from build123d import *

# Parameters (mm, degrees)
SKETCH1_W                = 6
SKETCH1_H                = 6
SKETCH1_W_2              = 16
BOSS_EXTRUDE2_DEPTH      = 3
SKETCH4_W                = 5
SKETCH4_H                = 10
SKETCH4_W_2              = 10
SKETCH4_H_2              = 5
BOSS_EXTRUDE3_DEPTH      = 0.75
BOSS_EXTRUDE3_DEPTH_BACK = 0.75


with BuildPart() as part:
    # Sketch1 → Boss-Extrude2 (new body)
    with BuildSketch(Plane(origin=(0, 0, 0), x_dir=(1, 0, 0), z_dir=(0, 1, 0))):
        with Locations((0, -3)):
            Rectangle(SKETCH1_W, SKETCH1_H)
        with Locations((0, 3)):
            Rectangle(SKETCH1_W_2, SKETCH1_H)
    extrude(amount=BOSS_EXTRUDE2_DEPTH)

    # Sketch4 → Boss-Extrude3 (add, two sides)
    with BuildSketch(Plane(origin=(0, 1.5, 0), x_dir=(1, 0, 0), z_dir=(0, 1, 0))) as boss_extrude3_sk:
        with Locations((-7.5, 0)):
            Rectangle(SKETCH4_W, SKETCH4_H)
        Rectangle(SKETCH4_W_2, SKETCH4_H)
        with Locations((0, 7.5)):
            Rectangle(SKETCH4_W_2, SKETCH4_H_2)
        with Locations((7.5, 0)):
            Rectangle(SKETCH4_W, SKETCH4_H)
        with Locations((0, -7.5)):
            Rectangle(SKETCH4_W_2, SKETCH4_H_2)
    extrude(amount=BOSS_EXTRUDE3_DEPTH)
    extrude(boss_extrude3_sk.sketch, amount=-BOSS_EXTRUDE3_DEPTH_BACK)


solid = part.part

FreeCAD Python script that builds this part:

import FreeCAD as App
import Part
import Sketcher

V = App.Vector


def add_polygon(sketch, points):
    """Adds a closed chain of lines whose ends are joined by coincident constraints."""
    first, n = sketch.GeometryCount, len(points)
    for a, b in zip(points, points[1:] + points[:1]):
        sketch.addGeometry(Part.LineSegment(App.Vector(*a, 0), App.Vector(*b, 0)), False)
    for i in range(n):
        sketch.addConstraint(Sketcher.Constraint("Coincident", first + i, 2, first + (i + 1) % n, 1))

doc = App.newDocument("Part")
params = doc.addObject("Spreadsheet::Sheet", "Params")
for row, (alias, value) in enumerate([
    ("sketch1_width", "6 mm"),
    ("sketch1_width2", "5 mm"),
    ("pad1_length", "3 mm"),
    ("sketch2_width", "5 mm"),
    ("sketch2_width2", "10 mm"),
    ("pad2_length", "0.75 mm"),
    ("pad2_length2", "0.75 mm"),
], start=1):
    params.set(f"A{row}", alias)
    params.set(f"B{row}", "=" + value)
    params.setAlias(f"B{row}", alias)

body = doc.addObject("PartDesign::Body", "Body")

# Sketch on XZ plane
sketch1 = doc.addObject("Sketcher::SketchObject", "Sketch")
body.addObject(sketch1)
sketch1.AttachmentSupport = (doc.XZ_Plane, [""])
sketch1.MapMode = "FlatFace"
add_polygon(sketch1, [(-3, 0), (-3, 6), (3, 6), (3, 0), (8, 0), (8, -6), (-8, -6), (-8, 0)])  # lines 0-7
sketch1.addConstraint([
    Sketcher.Constraint("Vertical", 0),
    Sketcher.Constraint("Horizontal", 1),
    Sketcher.Constraint("Vertical", 2),
    Sketcher.Constraint("Horizontal", 3),
    Sketcher.Constraint("Vertical", 4),
    Sketcher.Constraint("Horizontal", 5),
    Sketcher.Constraint("Vertical", 6),
    Sketcher.Constraint("Horizontal", 7),
    Sketcher.Constraint("Symmetric", 3, 2, 6, 2, -1, 1),
    Sketcher.Constraint("Symmetric", 2, 2, 7, 2, -2),
    Sketcher.Constraint("Equal", 1, 0),
    Sketcher.Constraint("Equal", 2, 4),
    Sketcher.Constraint("DistanceX", 1, 1, 1, 2, 6.0),
    Sketcher.Constraint("DistanceX", 3, 1, 3, 2, 5.0),
])
sketch1.setExpression("Constraints[20]", "Params.sketch1_width")
sketch1.setExpression("Constraints[21]", "Params.sketch1_width2")
pad1 = doc.addObject("PartDesign::Pad", "Pad")
body.addObject(pad1)
pad1.Profile = sketch1
pad1.setExpression("Length", "Params.pad1_length")
pad1.Reversed = True

# Sketch on XZ plane
sketch2 = doc.addObject("Sketcher::SketchObject", "Sketch001")
body.addObject(sketch2)
sketch2.AttachmentSupport = (doc.XZ_Plane, [""])
sketch2.MapMode = "FlatFace"
sketch2.AttachmentOffset = App.Placement(V(0, 0, -1.5), App.Rotation())
add_polygon(sketch2, [(-10, -5), (-10, 5), (-5, 5), (-5, 10), (5, 10), (5, 5), (10, 5), (10, -5), (5, -5), (5, -10), (-5, -10), (-5, -5)])  # lines 0-11
sketch2.addConstraint([
    Sketcher.Constraint("Vertical", 0),
    Sketcher.Constraint("Horizontal", 1),
    Sketcher.Constraint("Vertical", 2),
    Sketcher.Constraint("Horizontal", 3),
    Sketcher.Constraint("Vertical", 4),
    Sketcher.Constraint("Horizontal", 5),
    Sketcher.Constraint("Vertical", 6),
    Sketcher.Constraint("Horizontal", 7),
    Sketcher.Constraint("Vertical", 8),
    Sketcher.Constraint("Horizontal", 9),
    Sketcher.Constraint("Vertical", 10),
    Sketcher.Constraint("Horizontal", 11),
    Sketcher.Constraint("Symmetric", 0, 2, 6, 2, -1, 1),
    Sketcher.Constraint("Symmetric", 2, 2, 8, 2, -1, 1),
    Sketcher.Constraint("Symmetric", 4, 2, 10, 2, -1, 1),
    Sketcher.Constraint("Symmetric", 1, 2, 4, 2, -2),
    Sketcher.Constraint("Equal", 9, 0),
    Sketcher.Constraint("Equal", 11, 2),
    Sketcher.Constraint("DistanceX", 1, 1, 1, 2, 5.0),
    Sketcher.Constraint("DistanceX", 3, 1, 3, 2, 10.0),
])
sketch2.setExpression("Constraints[30]", "Params.sketch2_width")
sketch2.setExpression("Constraints[31]", "Params.sketch2_width2")
pad2 = doc.addObject("PartDesign::Pad", "Pad001")
body.addObject(pad2)
pad2.Profile = sketch2
pad2.Type = "TwoLengths"
pad2.setExpression("Length", "Params.pad2_length")
pad2.setExpression("Length2", "Params.pad2_length2")
pad2.Reversed = True

doc.recompute()
